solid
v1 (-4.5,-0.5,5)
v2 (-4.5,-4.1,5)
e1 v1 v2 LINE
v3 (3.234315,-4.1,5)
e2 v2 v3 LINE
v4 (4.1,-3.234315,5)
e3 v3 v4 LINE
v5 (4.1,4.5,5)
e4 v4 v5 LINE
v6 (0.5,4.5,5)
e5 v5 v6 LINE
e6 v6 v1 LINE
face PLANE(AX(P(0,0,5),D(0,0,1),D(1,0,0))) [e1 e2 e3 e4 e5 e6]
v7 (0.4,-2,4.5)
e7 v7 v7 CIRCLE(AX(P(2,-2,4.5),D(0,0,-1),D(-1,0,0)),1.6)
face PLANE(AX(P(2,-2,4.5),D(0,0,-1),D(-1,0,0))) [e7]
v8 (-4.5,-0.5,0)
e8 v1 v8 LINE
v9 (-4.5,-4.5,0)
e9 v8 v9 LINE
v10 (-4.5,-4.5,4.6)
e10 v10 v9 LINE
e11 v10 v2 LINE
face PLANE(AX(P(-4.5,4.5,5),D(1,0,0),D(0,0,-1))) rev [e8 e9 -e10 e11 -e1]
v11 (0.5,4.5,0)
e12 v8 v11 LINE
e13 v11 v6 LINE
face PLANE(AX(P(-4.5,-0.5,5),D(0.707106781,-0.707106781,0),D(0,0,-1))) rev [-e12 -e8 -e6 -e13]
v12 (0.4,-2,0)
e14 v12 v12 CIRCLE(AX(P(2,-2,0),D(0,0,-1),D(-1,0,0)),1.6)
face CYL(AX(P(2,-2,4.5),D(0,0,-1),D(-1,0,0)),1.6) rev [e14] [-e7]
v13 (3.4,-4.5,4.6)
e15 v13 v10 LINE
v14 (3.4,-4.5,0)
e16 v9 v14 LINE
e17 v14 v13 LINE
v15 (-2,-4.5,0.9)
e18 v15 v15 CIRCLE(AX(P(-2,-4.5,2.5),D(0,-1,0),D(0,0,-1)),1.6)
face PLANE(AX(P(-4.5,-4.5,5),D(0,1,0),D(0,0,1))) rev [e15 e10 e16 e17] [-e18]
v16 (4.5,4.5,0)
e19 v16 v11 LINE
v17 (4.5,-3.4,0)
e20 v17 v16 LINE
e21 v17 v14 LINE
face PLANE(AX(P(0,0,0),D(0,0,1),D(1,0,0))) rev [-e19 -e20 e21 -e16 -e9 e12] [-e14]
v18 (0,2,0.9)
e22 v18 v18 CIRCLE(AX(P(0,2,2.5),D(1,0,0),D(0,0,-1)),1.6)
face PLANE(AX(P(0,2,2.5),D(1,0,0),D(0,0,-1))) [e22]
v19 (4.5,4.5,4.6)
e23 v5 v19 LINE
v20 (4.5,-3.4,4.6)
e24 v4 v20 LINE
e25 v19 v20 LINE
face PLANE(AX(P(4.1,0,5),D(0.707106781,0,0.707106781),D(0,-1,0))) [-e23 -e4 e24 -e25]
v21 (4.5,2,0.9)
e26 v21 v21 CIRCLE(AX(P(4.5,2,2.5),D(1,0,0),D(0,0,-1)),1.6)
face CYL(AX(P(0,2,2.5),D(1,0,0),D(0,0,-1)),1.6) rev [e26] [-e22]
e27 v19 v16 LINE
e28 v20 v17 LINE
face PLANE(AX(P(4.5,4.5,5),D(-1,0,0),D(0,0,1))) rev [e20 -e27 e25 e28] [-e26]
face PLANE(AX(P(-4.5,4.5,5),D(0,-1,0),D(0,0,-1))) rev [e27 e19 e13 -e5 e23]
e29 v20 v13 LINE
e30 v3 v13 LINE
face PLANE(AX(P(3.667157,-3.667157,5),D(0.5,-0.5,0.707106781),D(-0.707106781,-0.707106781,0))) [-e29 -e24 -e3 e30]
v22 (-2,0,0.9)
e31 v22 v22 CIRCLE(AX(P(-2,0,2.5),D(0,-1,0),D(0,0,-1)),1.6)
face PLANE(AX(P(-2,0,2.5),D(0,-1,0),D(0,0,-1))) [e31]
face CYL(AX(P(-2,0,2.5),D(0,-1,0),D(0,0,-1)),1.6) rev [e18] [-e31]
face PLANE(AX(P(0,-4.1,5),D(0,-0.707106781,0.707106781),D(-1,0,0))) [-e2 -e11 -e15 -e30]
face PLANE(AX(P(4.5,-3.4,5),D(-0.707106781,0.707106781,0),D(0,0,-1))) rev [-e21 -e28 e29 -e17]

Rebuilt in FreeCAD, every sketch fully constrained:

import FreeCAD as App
import Part
import Sketcher

V = App.Vector


def edges_at(feature, points):
    """Names of the edges that pass closest to the given points."""
    edges = feature.Shape.Edges
    near = lambda p: min(range(len(edges)), key=lambda i: edges[i].distToShape(Part.Vertex(*p))[0])
    return sorted({f"Edge{near(p) + 1}" for p in points})

doc = App.newDocument("Part")
params = doc.addObject("Spreadsheet::Sheet", "Params")
for row, (alias, value) in enumerate([
    ("sketch1_width", "9 mm"),
    ("pad1_length", "5 mm"),
    ("sketch2_diameter", "3.2 mm"),
    ("pocket1_length", "4.5 mm"),
    ("sketch3_diameter", "3.2 mm"),
    ("pocket2_length", "4.5 mm"),
    ("sketch4_diameter", "3.2 mm"),
    ("pocket3_length", "4.5 mm"),
    ("chamfer_size", "1.1 mm"),
    ("chamfer2_size", "5 mm"),
    ("chamfer3_size", "0.4 mm"),
], start=1):
    params.set(f"A{row}", alias)
    params.set(f"B{row}", "=" + value)
    params.setAlias(f"B{row}", alias)

body = doc.addObject("PartDesign::Body", "Body")

# Sketch on XY plane
sketch1 = doc.addObject("Sketcher::SketchObject", "Sketch")
body.addObject(sketch1)
sketch1.AttachmentSupport = (doc.XY_Plane, [""])
sketch1.MapMode = "FlatFace"
sketch1.addGeometry(Part.LineSegment(V(-4, 4, 0), V(-4, -4, 0)), False)
sketch1.addGeometry(Part.LineSegment(V(-4, -4, 0), V(4, -4, 0)), False)
sketch1.addGeometry(Part.LineSegment(V(4, -4, 0), V(4, 4, 0)), False)
sketch1.addGeometry(Part.LineSegment(V(4, 4, 0), V(-4, 4, 0)), False)
sketch1.addConstraint(Sketcher.Constraint("Coincident", 0, 2, 1, 1))
sketch1.addConstraint(Sketcher.Constraint("Coincident", 1, 2, 2, 1))
sketch1.addConstraint(Sketcher.Constraint("Coincident", 2, 2, 3, 1))
sketch1.addConstraint(Sketcher.Constraint("Coincident", 3, 2, 0, 1))
sketch1.addConstraint(Sketcher.Constraint("Vertical", 0))
sketch1.addConstraint(Sketcher.Constraint("Horizontal", 1))
sketch1.addConstraint(Sketcher.Constraint("Vertical", 2))
sketch1.addConstraint(Sketcher.Constraint("Horizontal", 3))
sketch1.addConstraint(Sketcher.Constraint("Symmetric", 0, 2, 2, 2, -1, 1))
sketch1.addConstraint(Sketcher.Constraint("Equal", 3, 0))
sketch1.addConstraint(Sketcher.Constraint("DistanceX", 1, 1, 1, 2, 9.0))
sketch1.setExpression("Constraints[10]", "Params.sketch1_width")
pad1 = doc.addObject("PartDesign::Pad", "Pad")
body.addObject(pad1)
pad1.Profile = sketch1
pad1.setExpression("Length", "Params.pad1_length")

# Sketch on XY plane
sketch2 = doc.addObject("Sketcher::SketchObject", "Sketch001")
body.addObject(sketch2)
sketch2.AttachmentSupport = (doc.XY_Plane, [""])
sketch2.MapMode = "FlatFace"
sketch2.addGeometry(Part.Circle(V(2, -2, 0), V(0, 0, 1), 1.6), False)
sketch2.addConstraint(Sketcher.Constraint("Diameter", 0, 3.2))
sketch2.addConstraint(Sketcher.Constraint("DistanceX", -1, 1, 0, 3, 2.0))
sketch2.addConstraint(Sketcher.Constraint("DistanceY", 0, 3, -1, 1, 2.0))
sketch2.setExpression("Constraints[0]", "Params.sketch2_diameter")
pocket1 = doc.addObject("PartDesign::Pocket", "Pocket")
body.addObject(pocket1)
pocket1.Profile = sketch2
pocket1.setExpression("Length", "Params.pocket1_length")
pocket1.Reversed = True

# Sketch on YZ plane
sketch3 = doc.addObject("Sketcher::SketchObject", "Sketch002")
body.addObject(sketch3)
sketch3.AttachmentSupport = (doc.YZ_Plane, [""])
sketch3.MapMode = "FlatFace"
sketch3.AttachmentOffset = App.Placement(V(0, 0, 4.5), App.Rotation())
sketch3.addGeometry(Part.Circle(V(2, 2.5, 0), V(0, 0, 1), 1.6), False)
sketch3.addConstraint(Sketcher.Constraint("Diameter", 0, 3.2))
sketch3.addConstraint(Sketcher.Constraint("DistanceX", -1, 1, 0, 3, 2.0))
sketch3.addConstraint(Sketcher.Constraint("DistanceY", -1, 1, 0, 3, 2.5))
sketch3.setExpression("Constraints[0]", "Params.sketch3_diameter")
pocket2 = doc.addObject("PartDesign::Pocket", "Pocket001")
body.addObject(pocket2)
pocket2.Profile = sketch3
pocket2.setExpression("Length", "Params.pocket2_length")

# Sketch on XZ plane
sketch4 = doc.addObject("Sketcher::SketchObject", "Sketch003")
body.addObject(sketch4)
sketch4.AttachmentSupport = (doc.XZ_Plane, [""])
sketch4.MapMode = "FlatFace"
sketch4.AttachmentOffset = App.Placement(V(0, 0, 4.5), App.Rotation())
sketch4.addGeometry(Part.Circle(V(-2, 2.5, 0), V(0, 0, 1), 1.6), False)
sketch4.addConstraint(Sketcher.Constraint("Diameter", 0, 3.2))
sketch4.addConstraint(Sketcher.Constraint("DistanceX", 0, 3, -1, 1, 2.0))
sketch4.addConstraint(Sketcher.Constraint("DistanceY", -1, 1, 0, 3, 2.5))
sketch4.setExpression("Constraints[0]", "Params.sketch4_diameter")
pocket3 = doc.addObject("PartDesign::Pocket", "Pocket002")
body.addObject(pocket3)
pocket3.Profile = sketch4
pocket3.setExpression("Length", "Params.pocket3_length")
doc.recompute()

chamfer = doc.addObject("PartDesign::Chamfer", "Chamfer")
body.addObject(chamfer)
chamfer.Base = (pocket3, edges_at(pocket3, [(4.5, -4.5, 2.5)]))
chamfer.setExpression("Size", "Params.chamfer_size")
doc.recompute()

chamfer2 = doc.addObject("PartDesign::Chamfer", "Chamfer001")
body.addObject(chamfer2)
chamfer2.Base = (chamfer, edges_at(chamfer, [(-4.5, 4.5, 2.5)]))
chamfer2.setExpression("Size", "Params.chamfer2_size")
doc.recompute()

chamfer3 = doc.addObject("PartDesign::Chamfer", "Chamfer002")
body.addObject(chamfer3)
chamfer3.Base = (chamfer2, edges_at(chamfer2, [(4.5, 0.55, 5), (3.95, -3.95, 5), (-0.55, -4.5, 5)]))
chamfer3.setExpression("Size", "Params.chamfer3_size")

doc.recompute()
